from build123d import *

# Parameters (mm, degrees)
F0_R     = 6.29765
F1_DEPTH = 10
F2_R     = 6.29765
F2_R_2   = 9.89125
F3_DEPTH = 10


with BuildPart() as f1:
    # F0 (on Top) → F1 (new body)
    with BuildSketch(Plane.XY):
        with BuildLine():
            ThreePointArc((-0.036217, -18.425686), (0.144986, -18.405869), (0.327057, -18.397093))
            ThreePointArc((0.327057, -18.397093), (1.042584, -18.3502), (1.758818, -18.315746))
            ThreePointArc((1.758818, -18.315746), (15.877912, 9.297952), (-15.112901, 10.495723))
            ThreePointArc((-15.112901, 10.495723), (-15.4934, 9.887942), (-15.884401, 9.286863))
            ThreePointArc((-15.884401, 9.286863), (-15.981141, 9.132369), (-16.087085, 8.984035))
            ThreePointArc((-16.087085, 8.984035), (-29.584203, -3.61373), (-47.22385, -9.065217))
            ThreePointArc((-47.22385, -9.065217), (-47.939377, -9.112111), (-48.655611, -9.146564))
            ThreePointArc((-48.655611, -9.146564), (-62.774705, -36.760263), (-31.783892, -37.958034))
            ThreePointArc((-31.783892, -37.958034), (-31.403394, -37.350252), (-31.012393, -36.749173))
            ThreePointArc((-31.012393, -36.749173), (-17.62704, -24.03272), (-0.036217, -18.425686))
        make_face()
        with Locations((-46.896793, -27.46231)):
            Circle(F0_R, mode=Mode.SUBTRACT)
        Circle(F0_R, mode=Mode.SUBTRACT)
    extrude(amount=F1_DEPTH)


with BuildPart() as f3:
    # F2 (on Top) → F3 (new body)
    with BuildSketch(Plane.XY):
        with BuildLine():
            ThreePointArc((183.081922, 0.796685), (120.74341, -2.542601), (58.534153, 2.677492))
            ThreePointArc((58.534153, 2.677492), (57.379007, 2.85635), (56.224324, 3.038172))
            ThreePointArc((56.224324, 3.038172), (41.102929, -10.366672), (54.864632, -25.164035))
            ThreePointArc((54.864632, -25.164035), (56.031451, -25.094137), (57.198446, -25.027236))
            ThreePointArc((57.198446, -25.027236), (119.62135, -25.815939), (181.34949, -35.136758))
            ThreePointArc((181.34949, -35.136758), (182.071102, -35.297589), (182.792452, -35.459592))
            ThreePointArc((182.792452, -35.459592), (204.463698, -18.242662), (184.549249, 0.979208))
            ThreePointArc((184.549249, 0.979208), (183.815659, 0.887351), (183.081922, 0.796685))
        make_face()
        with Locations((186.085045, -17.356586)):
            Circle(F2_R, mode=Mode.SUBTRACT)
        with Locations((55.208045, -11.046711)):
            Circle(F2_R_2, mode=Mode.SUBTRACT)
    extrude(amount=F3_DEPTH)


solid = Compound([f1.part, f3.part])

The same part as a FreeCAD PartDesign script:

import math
import FreeCAD as App
import Part
import Sketcher
from FreeCAD import Vector

doc = App.newDocument("Part")
params = doc.addObject("Spreadsheet::Sheet", "Params")
for row, (alias, value) in enumerate([
    ("sketch1_radius", "18.4 mm"),
    ("sketch1_radius2", "18.4 mm"),
    ("pad1_length", "10 mm"),
    ("sketch2_radius", "18.4 mm"),
    ("pad2_length", "10 mm"),
], start=1):
    params.set(f"A{row}", alias)
    params.set(f"B{row}", "=" + value)
    params.setAlias(f"B{row}", alias)

body = doc.addObject("PartDesign::Body", "Body")

# Sketch on XY plane
sketch1 = body.newObject("Sketcher::SketchObject", "Sketch")
sketch1.AttachmentSupport = (doc.getObject("XY_Plane"), [""])
sketch1.MapMode = "FlatFace"
sketch1.addGeometry([
    Part.ArcOfCircle(Part.Circle(Vector(0.380398, -21.396786, 0), Vector(0, 0, 1), 3.000167), math.radians(91.018737), math.radians(97.982114)),  # 0
    Part.ArcOfCircle(Part.Circle(Vector(3.38357, -59.553106, 0), Vector(0, 0, 1), 41.269356), math.radians(92.256287), math.radians(94.24736)),  # 1
    Part.ArcOfCircle(Part.Circle(Vector(0, 0, 0), Vector(0, 0, 1), 18.4), math.radians(-84.514841), math.radians(145.220499)),  # 2
    Part.ArcOfCircle(Part.Circle(Vector(-50.283906, 32.091403, 0), Vector(0, 0, 1), 41.271939), math.radians(-33.541679), math.radians(-31.550732)),  # 3
    Part.ArcOfCircle(Part.Circle(Vector(-18.474372, 10.801098, 0), Vector(0, 0, 1), 3.000143), math.radians(-37.276272), math.radians(-30.312837)),  # 4
    Part.ArcOfCircle(Part.Circle(Vector(-50.280256, 32.089032, 0), Vector(0, 0, 1), 41.267589), math.radians(-85.752607), math.radians(-34.047667)),  # 5
    Part.ArcOfCircle(Part.Circle(Vector(-50.279988, 32.084194, 0), Vector(0, 0, 1), 41.262744), math.radians(-87.743872), math.radians(-85.75248)),  # 6
    Part.ArcOfCircle(Part.Circle(Vector(-46.896793, -27.46231, 0), Vector(0, 0, 1), 18.4), math.radians(95.485159), math.radians(325.220498)),  # 7
    Part.ArcOfCircle(Part.Circle(Vector(3.383293, -59.551228, 0), Vector(0, 0, 1), 41.267383), math.radians(146.458266), math.radians(148.449433)),  # 8
    Part.ArcOfCircle(Part.Circle(Vector(3.383466, -59.551349, 0), Vector(0, 0, 1), 41.267595), math.radians(94.753327), math.radians(146.458259)),  # 9
    Part.Circle(Vector(-46.896793, -27.46231, 0), Vector(0, 0, 1), 6.29765),  # 10
    Part.Circle(Vector(0, 0, 0), Vector(0, 0, 1), 6.29765),  # 11
], False)
sketch1.addConstraint([
    Sketcher.Constraint("Coincident", 0, 1, 1, 2),
    Sketcher.Constraint("Coincident", 1, 1, 2, 1),
    Sketcher.Constraint("Coincident", 2, 2, 3, 2),
    Sketcher.Constraint("Coincident", 3, 1, 4, 2),
    Sketcher.Constraint("Coincident", 4, 1, 5, 2),
    Sketcher.Constraint("Coincident", 5, 1, 6, 2),
    Sketcher.Constraint("Coincident", 6, 1, 7, 1),
    Sketcher.Constraint("Coincident", 7, 2, 8, 2),
    Sketcher.Constraint("Coincident", 8, 1, 9, 2),
    Sketcher.Constraint("Coincident", 9, 1, 0, 2),
    Sketcher.Constraint("Coincident", 2, 3, -1, 1),
    Sketcher.Constraint("Coincident", 11, 3, -1, 1),
    Sketcher.Constraint("Coincident", 10, 3, 7, 3),
    Sketcher.Constraint("Radius", 2, 18.4),
    Sketcher.Constraint("Radius", 7, 18.4),
    Sketcher.Constraint("Diameter", 10, 12.5953),
    Sketcher.Constraint("Diameter", 11, 12.5953),
    Sketcher.Constraint("Radius", 3, 41.271939),
    Sketcher.Constraint("Radius", 5, 41.267589),
    Sketcher.Constraint("Radius", 0, 3.000167),
    Sketcher.Constraint("Radius", 1, 41.269356),
    Sketcher.Constraint("Radius", 4, 3.000143),
    Sketcher.Constraint("Radius", 6, 41.262744),
    Sketcher.Constraint("Radius", 8, 41.267383),
    Sketcher.Constraint("Radius", 9, 41.267595),
    Sketcher.Constraint("DistanceX", -1, 1, 0, 3, 0.380398),
    Sketcher.Constraint("DistanceY", -1, 1, 4, 3, 10.801098),
    Sketcher.Constraint("DistanceX", 2, 2, -1, 1, 15.112901),
    Sketcher.Constraint("DistanceX", 3, 1, -1, 1, 15.884401),
    Sketcher.Constraint("DistanceY", 6, 1, 4, 1, 18.130599),
    Sketcher.Constraint("DistanceX", 10, 3, 7, 2, 15.112901),
    Sketcher.Constraint("DistanceX", 7, 2, 8, 1, 0.771499),
    Sketcher.Constraint("DistanceY", 0, 3, 9, 1, 2.9711),
    Sketcher.Constraint("DistanceX", -1, 1, 1, 3, 3.38357),
    Sketcher.Constraint("DistanceX", 4, 3, -1, 1, 18.474372),
    Sketcher.Constraint("DistanceX", 6, 3, -1, 1, 50.279988),
    Sketcher.Constraint("DistanceY", 7, 3, -1, 1, 27.46231),
    Sketcher.Constraint("DistanceY", 8, 3, -1, 1, 59.551228),
    Sketcher.Constraint("DistanceY", 9, 3, -1, 1, 59.551349),
    Sketcher.Constraint("DistanceX", 5, 1, -1, 1, 47.22385),
    Sketcher.Constraint("DistanceX", 6, 1, -1, 1, 48.655611),
    Sketcher.Constraint("DistanceX", 7, 2, -1, 1, 31.783892),
    Sketcher.Constraint("DistanceY", 1, 3, 0, 3, 38.15632),
])
sketch1.setExpression("Constraints[13]", "Params.sketch1_radius")
sketch1.setExpression("Constraints[14]", "Params.sketch1_radius2")
pad1 = body.newObject("PartDesign::Pad", "Pad")
pad1.Profile = sketch1
pad1.setExpression("Length", "Params.pad1_length")
body2 = doc.addObject("PartDesign::Body", "Body001")

# Sketch on XY plane
sketch2 = body2.newObject("Sketcher::SketchObject", "Sketch001")
sketch2.AttachmentSupport = (doc.getObject("XY_Plane001"), [""])
sketch2.MapMode = "FlatFace"
sketch2.addGeometry([
    Part.ArcOfCircle(Part.Circle(Vector(127.617643, 452.671783, 0), Vector(0, 0, 1), 455.266285), math.radians(-98.727952), math.radians(-83.002374)),  # 0
    Part.ArcOfCircle(Part.Circle(Vector(127.647492, 452.862409, 0), Vector(0, 0, 1), 455.459233), math.radians(-99.022117), math.radians(-98.728024)),  # 1
    Part.ArcOfCircle(Part.Circle(Vector(55.208045, -11.046711, 0), Vector(0, 0, 1), 14.1215), math.radians(85.87304), math.radians(268.606517)),  # 2
    Part.ArcOfCircle(Part.Circle(Vector(82.663242, -479.436979, 0), Vector(0, 0, 1), 455.122698), math.radians(93.20746), math.radians(93.50177)),  # 3
    Part.ArcOfCircle(Part.Circle(Vector(82.671679, -479.580241, 0), Vector(0, 0, 1), 455.266208), math.radians(77.481931), math.radians(93.207511)),  # 4
    Part.ArcOfCircle(Part.Circle(Vector(82.699211, -479.457321, 0), Vector(0, 0, 1), 455.140243), math.radians(77.295821), math.radians(77.48196)),  # 5
    Part.ArcOfCircle(Part.Circle(Vector(186.085045, -17.356586, 0), Vector(0, 0, 1), 18.4), math.radians(-100.308332), math.radians(94.787888)),  # 6
    Part.ArcOfCircle(Part.Circle(Vector(127.591312, 452.882459, 0), Vector(0, 0, 1), 455.4786), math.radians(-83.002315), math.radians(-82.816314)),  # 7
    Part.Circle(Vector(186.085045, -17.356586, 0), Vector(0, 0, 1), 6.29765),  # 8
    Part.Circle(Vector(55.208045, -11.046711, 0), Vector(0, 0, 1), 9.89125),  # 9
], False)
sketch2.addConstraint([
    Sketcher.Constraint("Coincident", 0, 1, 1, 2),
    Sketcher.Constraint("Coincident", 1, 1, 2, 1),
    Sketcher.Constraint("Coincident", 2, 2, 3, 2),
    Sketcher.Constraint("Coincident", 3, 1, 4, 2),
    Sketcher.Constraint("Coincident", 4, 1, 5, 2),
    Sketcher.Constraint("Coincident", 5, 1, 6, 1),
    Sketcher.Constraint("Coincident", 6, 2, 7, 2),
    Sketcher.Constraint("Coincident", 7, 1, 0, 2),
    Sketcher.Constraint("Coincident", 8, 3, 6, 3),
    Sketcher.Constraint("Coincident", 9, 3, 2, 3),
    Sketcher.Constraint("Radius", 6, 18.4),
    Sketcher.Constraint("Diameter", 8, 12.5953),
    Sketcher.Constraint("Diameter", 9, 19.7825),
    Sketcher.Constraint("Radius", 2, 14.1215),
    Sketcher.Constraint("Radius", 7, 455.4786),
    Sketcher.Constraint("Radius", 4, 455.266208),
    Sketcher.Constraint("Radius", 0, 455.266285),
    Sketcher.Constraint("Radius", 1, 455.459233),
    Sketcher.Constraint("Radius", 3, 455.122698),
    Sketcher.Constraint("Radius", 5, 455.140243),
    Sketcher.Constraint("DistanceX", 2, 3, 6, 3, 130.877),
    Sketcher.Constraint("DistanceX", 3, 3, 0, 3, 44.954401),
    Sketcher.Constraint("DistanceY", 2, 2, 3, 1, 0.136799),
    Sketcher.Constraint("DistanceX", 2, 3, 3, 1, 1.990401),
    Sketcher.Constraint("DistanceY", 5, 1, 6, 2, 36.4388),
    Sketcher.Constraint("DistanceY", -1, 1, 1, 3, 452.862409),
    Sketcher.Constraint("DistanceY", 2, 3, -1, 1, 11.046711),
    Sketcher.Constraint("DistanceY", 3, 3, -1, 1, 479.436979),
    Sketcher.Constraint("DistanceX", -1, 1, 4, 3, 82.671679),
    Sketcher.Constraint("DistanceY", 4, 3, -1, 1, 479.580241),
    Sketcher.Constraint("DistanceX", -1, 1, 5, 3, 82.699211),
    Sketcher.Constraint("DistanceY", -1, 1, 7, 3, 452.882459),
    Sketcher.Constraint("DistanceY", -1, 1, 0, 1, 2.677492),
    Sketcher.Constraint("DistanceX", -1, 1, 4, 1, 181.34949),
    Sketcher.Constraint("DistanceY", 5, 1, -1, 1, 35.459592),
    Sketcher.Constraint("DistanceX", -1, 1, 7, 1, 183.081922),
])
sketch2.setExpression("Constraints[10]", "Params.sketch2_radius")
pad2 = body2.newObject("PartDesign::Pad", "Pad001")
pad2.Profile = sketch2
pad2.setExpression("Length", "Params.pad2_length")

doc.recompute()
